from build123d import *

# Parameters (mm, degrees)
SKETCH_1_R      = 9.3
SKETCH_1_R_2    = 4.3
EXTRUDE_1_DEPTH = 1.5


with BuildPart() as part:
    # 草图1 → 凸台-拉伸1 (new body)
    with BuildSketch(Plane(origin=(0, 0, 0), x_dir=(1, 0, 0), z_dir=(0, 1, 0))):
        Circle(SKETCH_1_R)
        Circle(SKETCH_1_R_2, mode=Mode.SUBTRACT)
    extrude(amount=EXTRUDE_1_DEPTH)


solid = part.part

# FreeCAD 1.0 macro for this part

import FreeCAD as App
import Part
import Sketcher

V = App.Vector
Q = App.Units.Quantity

doc = App.newDocument("Part")
body = doc.addObject("PartDesign::Body", "Body")

sketch1 = body.newObject("Sketcher::SketchObject", "Sketch")
sketch1.AttachmentSupport = (doc.getObject("XZ_Plane"), [""])
sketch1.MapMode = "FlatFace"
sketch1.addGeometry([
    Part.Circle(V(0, 0, 0), V(0, 0, 1), 9.3),
    Part.Circle(V(0, 0, 0), V(0, 0, 1), 4.3),
], False)
sketch1.addConstraint([
    Sketcher.Constraint("Coincident", 0, 3, -1, 1),
    Sketcher.Constraint("Coincident", 1, 3, -1, 1),
    Sketcher.Constraint("Diameter", 0, Q("18.6 mm")),
    Sketcher.Constraint("Diameter", 1, Q("8.6 mm")),
])
pad1 = body.newObject("PartDesign::Pad", "Pad")
pad1.Profile = sketch1
pad1.Length = 1.5
pad1.Reversed = True

doc.recompute()
